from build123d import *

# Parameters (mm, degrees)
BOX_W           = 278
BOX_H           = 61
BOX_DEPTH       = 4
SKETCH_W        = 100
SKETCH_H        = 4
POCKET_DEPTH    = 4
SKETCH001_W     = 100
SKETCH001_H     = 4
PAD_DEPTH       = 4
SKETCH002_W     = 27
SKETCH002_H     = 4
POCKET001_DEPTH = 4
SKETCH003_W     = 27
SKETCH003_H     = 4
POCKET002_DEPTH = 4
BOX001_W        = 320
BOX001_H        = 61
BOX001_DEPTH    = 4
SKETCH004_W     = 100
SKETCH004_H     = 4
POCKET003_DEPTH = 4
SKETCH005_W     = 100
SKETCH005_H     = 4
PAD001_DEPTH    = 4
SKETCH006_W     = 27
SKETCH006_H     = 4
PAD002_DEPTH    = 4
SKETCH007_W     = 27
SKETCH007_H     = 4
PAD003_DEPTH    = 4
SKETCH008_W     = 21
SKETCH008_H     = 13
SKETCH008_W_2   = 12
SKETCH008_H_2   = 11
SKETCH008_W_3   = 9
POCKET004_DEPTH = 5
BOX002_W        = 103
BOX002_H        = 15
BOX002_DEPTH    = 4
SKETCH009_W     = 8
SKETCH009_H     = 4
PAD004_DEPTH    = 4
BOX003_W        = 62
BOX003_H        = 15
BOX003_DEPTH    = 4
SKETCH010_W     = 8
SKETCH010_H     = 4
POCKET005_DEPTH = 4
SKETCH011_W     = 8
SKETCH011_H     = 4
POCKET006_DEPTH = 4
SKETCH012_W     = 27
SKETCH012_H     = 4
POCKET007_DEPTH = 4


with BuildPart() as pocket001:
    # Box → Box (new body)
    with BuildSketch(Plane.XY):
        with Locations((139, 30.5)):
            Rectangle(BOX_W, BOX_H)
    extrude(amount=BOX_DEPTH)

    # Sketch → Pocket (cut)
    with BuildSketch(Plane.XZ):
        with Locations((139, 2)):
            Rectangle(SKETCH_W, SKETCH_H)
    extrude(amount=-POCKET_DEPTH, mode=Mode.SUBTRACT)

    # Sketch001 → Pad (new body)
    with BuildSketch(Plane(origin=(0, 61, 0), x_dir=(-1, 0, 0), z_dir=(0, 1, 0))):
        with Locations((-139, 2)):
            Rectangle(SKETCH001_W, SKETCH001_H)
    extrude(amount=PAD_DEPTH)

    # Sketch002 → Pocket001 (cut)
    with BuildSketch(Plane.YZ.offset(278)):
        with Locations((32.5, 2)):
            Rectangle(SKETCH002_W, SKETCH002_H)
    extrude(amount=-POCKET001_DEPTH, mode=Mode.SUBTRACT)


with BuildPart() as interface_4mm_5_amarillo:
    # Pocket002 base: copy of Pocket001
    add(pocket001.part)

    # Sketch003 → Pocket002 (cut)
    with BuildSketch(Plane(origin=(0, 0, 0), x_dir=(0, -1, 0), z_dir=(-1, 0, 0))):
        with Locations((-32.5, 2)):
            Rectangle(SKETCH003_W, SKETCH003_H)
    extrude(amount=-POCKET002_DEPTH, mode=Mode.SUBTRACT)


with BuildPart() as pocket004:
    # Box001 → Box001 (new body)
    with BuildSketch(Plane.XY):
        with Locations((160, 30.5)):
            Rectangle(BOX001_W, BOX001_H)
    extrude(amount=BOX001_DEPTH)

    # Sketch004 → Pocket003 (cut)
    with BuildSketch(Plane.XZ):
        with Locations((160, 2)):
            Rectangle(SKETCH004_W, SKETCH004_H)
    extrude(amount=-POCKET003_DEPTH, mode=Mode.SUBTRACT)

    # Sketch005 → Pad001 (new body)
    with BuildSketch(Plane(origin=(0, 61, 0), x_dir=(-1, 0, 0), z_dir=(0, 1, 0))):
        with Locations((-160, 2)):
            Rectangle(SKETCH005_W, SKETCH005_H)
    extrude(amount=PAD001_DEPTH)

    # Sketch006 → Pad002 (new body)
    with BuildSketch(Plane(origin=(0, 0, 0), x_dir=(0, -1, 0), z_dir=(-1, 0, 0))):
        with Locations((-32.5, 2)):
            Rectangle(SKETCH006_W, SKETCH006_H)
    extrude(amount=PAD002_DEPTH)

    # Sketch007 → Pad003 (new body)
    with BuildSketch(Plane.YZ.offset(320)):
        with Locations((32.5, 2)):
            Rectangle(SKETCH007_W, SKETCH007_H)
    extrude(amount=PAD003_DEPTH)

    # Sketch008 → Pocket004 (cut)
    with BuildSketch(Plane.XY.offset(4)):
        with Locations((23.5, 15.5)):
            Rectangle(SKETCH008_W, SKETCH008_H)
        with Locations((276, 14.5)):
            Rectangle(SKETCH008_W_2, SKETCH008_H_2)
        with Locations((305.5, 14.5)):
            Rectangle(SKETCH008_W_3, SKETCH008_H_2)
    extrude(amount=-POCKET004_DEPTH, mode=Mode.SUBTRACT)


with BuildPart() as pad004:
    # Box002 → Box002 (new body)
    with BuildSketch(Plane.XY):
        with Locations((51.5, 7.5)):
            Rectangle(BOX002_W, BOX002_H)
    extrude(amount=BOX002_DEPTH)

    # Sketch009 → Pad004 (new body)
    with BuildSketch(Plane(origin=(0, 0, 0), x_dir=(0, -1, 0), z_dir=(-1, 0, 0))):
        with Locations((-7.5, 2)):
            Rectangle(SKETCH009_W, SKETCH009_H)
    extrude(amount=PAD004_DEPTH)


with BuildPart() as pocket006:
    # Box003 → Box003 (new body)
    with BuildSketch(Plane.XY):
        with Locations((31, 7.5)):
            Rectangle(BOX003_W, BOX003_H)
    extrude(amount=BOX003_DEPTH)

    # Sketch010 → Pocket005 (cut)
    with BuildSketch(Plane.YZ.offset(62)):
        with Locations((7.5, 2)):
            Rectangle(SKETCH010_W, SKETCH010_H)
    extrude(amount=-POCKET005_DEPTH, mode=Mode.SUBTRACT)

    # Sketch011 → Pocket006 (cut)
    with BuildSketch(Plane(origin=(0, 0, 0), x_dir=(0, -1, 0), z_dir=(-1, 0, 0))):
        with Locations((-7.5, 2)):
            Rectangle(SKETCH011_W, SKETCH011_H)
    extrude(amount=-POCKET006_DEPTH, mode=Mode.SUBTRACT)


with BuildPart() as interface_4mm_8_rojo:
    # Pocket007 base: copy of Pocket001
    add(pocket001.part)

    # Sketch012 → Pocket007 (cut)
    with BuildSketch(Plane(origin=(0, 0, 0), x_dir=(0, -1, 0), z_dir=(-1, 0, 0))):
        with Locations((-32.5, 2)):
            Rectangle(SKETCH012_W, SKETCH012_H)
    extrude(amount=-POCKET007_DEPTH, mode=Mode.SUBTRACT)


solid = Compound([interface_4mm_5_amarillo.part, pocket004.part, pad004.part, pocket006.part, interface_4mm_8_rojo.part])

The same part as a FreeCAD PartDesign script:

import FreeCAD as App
import Part
import Sketcher

V = App.Vector


def add_polygon(sketch, points):
    """Adds a closed chain of lines whose ends are joined by coincident constraints."""
    first, n = sketch.GeometryCount, len(points)
    for a, b in zip(points, points[1:] + points[:1]):
        sketch.addGeometry(Part.LineSegment(App.Vector(*a, 0), App.Vector(*b, 0)), False)
    for i in range(n):
        sketch.addConstraint(Sketcher.Constraint("Coincident", first + i, 2, first + (i + 1) % n, 1))

doc = App.newDocument("Part")
body = doc.addObject("PartDesign::Body", "Body")

# Sketch on XY plane
sketch1 = body.newObject("Sketcher::SketchObject", "Sketch")
sketch1.AttachmentSupport = (doc.getObject("XY_Plane"), [""])
sketch1.MapMode = "FlatFace"
add_polygon(sketch1, [(0, 61), (0, 0), (278, 0), (278, 61)])  # lines 0-3
sketch1.addConstraint(Sketcher.Constraint("Vertical", 0))
sketch1.addConstraint(Sketcher.Constraint("Horizontal", 1))
sketch1.addConstraint(Sketcher.Constraint("Vertical", 2))
sketch1.addConstraint(Sketcher.Constraint("Horizontal", 3))
sketch1.addConstraint(Sketcher.Constraint("Coincident", 0, 2, -1, 1))
sketch1.addConstraint(Sketcher.Constraint("DistanceX", 1, 1, 1, 2, 278.0))
sketch1.addConstraint(Sketcher.Constraint("DistanceY", 0, 2, 0, 1, 61.0))
pad1 = body.newObject("PartDesign::Pad", "Pad")
pad1.Profile = sketch1
pad1.Length = 4

# Sketch on XZ plane
sketch2 = body.newObject("Sketcher::SketchObject", "Sketch001")
sketch2.AttachmentSupport = (doc.getObject("XZ_Plane"), [""])
sketch2.MapMode = "FlatFace"
add_polygon(sketch2, [(89, 4), (89, 0), (189, 0), (189, 4)])  # lines 0-3
sketch2.addConstraint(Sketcher.Constraint("Vertical", 0))
sketch2.addConstraint(Sketcher.Constraint("Horizontal", 1))
sketch2.addConstraint(Sketcher.Constraint("Vertical", 2))
sketch2.addConstraint(Sketcher.Constraint("Horizontal", 3))
sketch2.addConstraint(Sketcher.Constraint("PointOnObject", 0, 2, -1))
sketch2.addConstraint(Sketcher.Constraint("DistanceX", 1, 1, 1, 2, 100.0))
sketch2.addConstraint(Sketcher.Constraint("DistanceY", 0, 2, 0, 1, 4.0))
sketch2.addConstraint(Sketcher.Constraint("DistanceX", -1, 1, 0, 2, 89.0))
pocket1 = body.newObject("PartDesign::Pocket", "Pocket")
pocket1.Profile = sketch2
pocket1.Length = 4

# Sketch on XZ plane
sketch3 = body.newObject("Sketcher::SketchObject", "Sketch002")
sketch3.AttachmentSupport = (doc.getObject("XZ_Plane"), [""])
sketch3.MapMode = "FlatFace"
sketch3.AttachmentOffset = App.Placement(V(0, 0, -61), App.Rotation())
add_polygon(sketch3, [(189, 4), (189, 0), (89, 0), (89, 4)])  # lines 0-3
sketch3.addConstraint(Sketcher.Constraint("Vertical", 0))
sketch3.addConstraint(Sketcher.Constraint("Horizontal", 1))
sketch3.addConstraint(Sketcher.Constraint("Vertical", 2))
sketch3.addConstraint(Sketcher.Constraint("Horizontal", 3))
sketch3.addConstraint(Sketcher.Constraint("PointOnObject", 0, 2, -1))
sketch3.addConstraint(Sketcher.Constraint("DistanceX", 1, 2, 1, 1, 100.0))
sketch3.addConstraint(Sketcher.Constraint("DistanceY", 0, 2, 0, 1, 4.0))
sketch3.addConstraint(Sketcher.Constraint("DistanceX", -1, 1, 0, 2, 189.0))
pad2 = body.newObject("PartDesign::Pad", "Pad001")
pad2.Profile = sketch3
pad2.Length = 4
pad2.Reversed = True

# Sketch on YZ plane
sketch4 = body.newObject("Sketcher::SketchObject", "Sketch003")
sketch4.AttachmentSupport = (doc.getObject("YZ_Plane"), [""])
sketch4.MapMode = "FlatFace"
sketch4.AttachmentOffset = App.Placement(V(0, 0, 278), App.Rotation())
add_polygon(sketch4, [(19, 4), (19, 0), (46, 0), (46, 4)])  # lines 0-3
sketch4.addConstraint(Sketcher.Constraint("Vertical", 0))
sketch4.addConstraint(Sketcher.Constraint("Horizontal", 1))
sketch4.addConstraint(Sketcher.Constraint("Vertical", 2))
sketch4.addConstraint(Sketcher.Constraint("Horizontal", 3))
sketch4.addConstraint(Sketcher.Constraint("PointOnObject", 0, 2, -1))
sketch4.addConstraint(Sketcher.Constraint("DistanceX", 1, 1, 1, 2, 27.0))
sketch4.addConstraint(Sketcher.Constraint("DistanceY", 0, 2, 0, 1, 4.0))
sketch4.addConstraint(Sketcher.Constraint("DistanceX", -1, 1, 0, 2, 19.0))
pocket2 = body.newObject("PartDesign::Pocket", "Pocket001")
pocket2.Profile = sketch4
pocket2.Length = 4
body2 = doc.addObject("PartDesign::Body", "Body001")
doc.recompute()

body2.BaseFeature = body
doc.recompute()

# Sketch on YZ plane
sketch5 = body2.newObject("Sketcher::SketchObject", "Sketch004")
sketch5.AttachmentSupport = (doc.getObject("YZ_Plane001"), [""])
sketch5.MapMode = "FlatFace"
add_polygon(sketch5, [(46, 4), (46, 0), (19, 0), (19, 4)])  # lines 0-3
sketch5.addConstraint(Sketcher.Constraint("Vertical", 0))
sketch5.addConstraint(Sketcher.Constraint("Horizontal", 1))
sketch5.addConstraint(Sketcher.Constraint("Vertical", 2))
sketch5.addConstraint(Sketcher.Constraint("Horizontal", 3))
sketch5.addConstraint(Sketcher.Constraint("PointOnObject", 0, 2, -1))
sketch5.addConstraint(Sketcher.Constraint("DistanceX", 1, 2, 1, 1, 27.0))
sketch5.addConstraint(Sketcher.Constraint("DistanceY", 0, 2, 0, 1, 4.0))
sketch5.addConstraint(Sketcher.Constraint("DistanceX", -1, 1, 0, 2, 46.0))
pocket3 = body2.newObject("PartDesign::Pocket", "Pocket002")
pocket3.Profile = sketch5
pocket3.Length = 4
pocket3.Reversed = True
body3 = doc.addObject("PartDesign::Body", "Body002")

# Sketch on XY plane
sketch6 = body3.newObject("Sketcher::SketchObject", "Sketch005")
sketch6.AttachmentSupport = (doc.getObject("XY_Plane002"), [""])
sketch6.MapMode = "FlatFace"
add_polygon(sketch6, [(0, 61), (0, 0), (320, 0), (320, 61)])  # lines 0-3
sketch6.addConstraint(Sketcher.Constraint("Vertical", 0))
sketch6.addConstraint(Sketcher.Constraint("Horizontal", 1))
sketch6.addConstraint(Sketcher.Constraint("Vertical", 2))
sketch6.addConstraint(Sketcher.Constraint("Horizontal", 3))
sketch6.addConstraint(Sketcher.Constraint("Coincident", 0, 2, -1, 1))
sketch6.addConstraint(Sketcher.Constraint("DistanceX", 1, 1, 1, 2, 320.0))
sketch6.addConstraint(Sketcher.Constraint("DistanceY", 0, 2, 0, 1, 61.0))
pad3 = body3.newObject("PartDesign::Pad", "Pad002")
pad3.Profile = sketch6
pad3.Length = 4

# Sketch on XZ plane
sketch7 = body3.newObject("Sketcher::SketchObject", "Sketch006")
sketch7.AttachmentSupport = (doc.getObject("XZ_Plane002"), [""])
sketch7.MapMode = "FlatFace"
add_polygon(sketch7, [(110, 4), (110, 0), (210, 0), (210, 4)])  # lines 0-3
sketch7.addConstraint(Sketcher.Constraint("Vertical", 0))
sketch7.addConstraint(Sketcher.Constraint("Horizontal", 1))
sketch7.addConstraint(Sketcher.Constraint("Vertical", 2))
sketch7.addConstraint(Sketcher.Constraint("Horizontal", 3))
sketch7.addConstraint(Sketcher.Constraint("PointOnObject", 0, 2, -1))
sketch7.addConstraint(Sketcher.Constraint("DistanceX", 1, 1, 1, 2, 100.0))
sketch7.addConstraint(Sketcher.Constraint("DistanceY", 0, 2, 0, 1, 4.0))
sketch7.addConstraint(Sketcher.Constraint("DistanceX", -1, 1, 0, 2, 110.0))
pocket4 = body3.newObject("PartDesign::Pocket", "Pocket003")
pocket4.Profile = sketch7
pocket4.Length = 4

# Sketch on XZ plane
sketch8 = body3.newObject("Sketcher::SketchObject", "Sketch007")
sketch8.AttachmentSupport = (doc.getObject("XZ_Plane002"), [""])
sketch8.MapMode = "FlatFace"
sketch8.AttachmentOffset = App.Placement(V(0, 0, -61), App.Rotation())
add_polygon(sketch8, [(210, 4), (210, 0), (110, 0), (110, 4)])  # lines 0-3
sketch8.addConstraint(Sketcher.Constraint("Vertical", 0))
sketch8.addConstraint(Sketcher.Constraint("Horizontal", 1))
sketch8.addConstraint(Sketcher.Constraint("Vertical", 2))
sketch8.addConstraint(Sketcher.Constraint("Horizontal", 3))
sketch8.addConstraint(Sketcher.Constraint("PointOnObject", 0, 2, -1))
sketch8.addConstraint(Sketcher.Constraint("DistanceX", 1, 2, 1, 1, 100.0))
sketch8.addConstraint(Sketcher.Constraint("DistanceY", 0, 2, 0, 1, 4.0))
sketch8.addConstraint(Sketcher.Constraint("DistanceX", -1, 1, 0, 2, 210.0))
pad4 = body3.newObject("PartDesign::Pad", "Pad003")
pad4.Profile = sketch8
pad4.Length = 4
pad4.Reversed = True

# Sketch on YZ plane
sketch9 = body3.newObject("Sketcher::SketchObject", "Sketch008")
sketch9.AttachmentSupport = (doc.getObject("YZ_Plane002"), [""])
sketch9.MapMode = "FlatFace"
add_polygon(sketch9, [(46, 4), (46, 0), (19, 0), (19, 4)])  # lines 0-3
sketch9.addConstraint(Sketcher.Constraint("Vertical", 0))
sketch9.addConstraint(Sketcher.Constraint("Horizontal", 1))
sketch9.addConstraint(Sketcher.Constraint("Vertical", 2))
sketch9.addConstraint(Sketcher.Constraint("Horizontal", 3))
sketch9.addConstraint(Sketcher.Constraint("PointOnObject", 0, 2, -1))
sketch9.addConstraint(Sketcher.Constraint("DistanceX", 1, 2, 1, 1, 27.0))
sketch9.addConstraint(Sketcher.Constraint("DistanceY", 0, 2, 0, 1, 4.0))
sketch9.addConstraint(Sketcher.Constraint("DistanceX", -1, 1, 0, 2, 46.0))
pad5 = body3.newObject("PartDesign::Pad", "Pad004")
pad5.Profile = sketch9
pad5.Length = 4
pad5.Reversed = True

# Sketch on YZ plane
sketch10 = body3.newObject("Sketcher::SketchObject", "Sketch009")
sketch10.AttachmentSupport = (doc.getObject("YZ_Plane002"), [""])
sketch10.MapMode = "FlatFace"
sketch10.AttachmentOffset = App.Placement(V(0, 0, 320), App.Rotation())
add_polygon(sketch10, [(19, 4), (19, 0), (46, 0), (46, 4)])  # lines 0-3
sketch10.addConstraint(Sketcher.Constraint("Vertical", 0))
sketch10.addConstraint(Sketcher.Constraint("Horizontal", 1))
sketch10.addConstraint(Sketcher.Constraint("Vertical", 2))
sketch10.addConstraint(Sketcher.Constraint("Horizontal", 3))
sketch10.addConstraint(Sketcher.Constraint("PointOnObject", 0, 2, -1))
sketch10.addConstraint(Sketcher.Constraint("DistanceX", 1, 1, 1, 2, 27.0))
sketch10.addConstraint(Sketcher.Constraint("DistanceY", 0, 2, 0, 1, 4.0))
sketch10.addConstraint(Sketcher.Constraint("DistanceX", -1, 1, 0, 2, 19.0))
pad6 = body3.newObject("PartDesign::Pad", "Pad005")
pad6.Profile = sketch10
pad6.Length = 4

# Sketch on XY plane
sketch11 = body3.newObject("Sketcher::SketchObject", "Sketch010")
sketch11.AttachmentSupport = (doc.getObject("XY_Plane002"), [""])
sketch11.MapMode = "FlatFace"
sketch11.AttachmentOffset = App.Placement(V(0, 0, 4), App.Rotation())
add_polygon(sketch11, [(13, 22), (13, 9), (34, 9), (34, 22)])  # lines 0-3
add_polygon(sketch11, [(270, 20), (270, 9), (282, 9), (282, 20)])  # lines 4-7
add_polygon(sketch11, [(301, 20), (301, 9), (310, 9), (310, 20)])  # lines 8-11
sketch11.addConstraint(Sketcher.Constraint("Vertical", 0))
sketch11.addConstraint(Sketcher.Constraint("Horizontal", 1))
sketch11.addConstraint(Sketcher.Constraint("Vertical", 2))
sketch11.addConstraint(Sketcher.Constraint("Horizontal", 3))
sketch11.addConstraint(Sketcher.Constraint("Vertical", 4))
sketch11.addConstraint(Sketcher.Constraint("Horizontal", 5))
sketch11.addConstraint(Sketcher.Constraint("Vertical", 6))
sketch11.addConstraint(Sketcher.Constraint("Horizontal", 7))
sketch11.addConstraint(Sketcher.Constraint("Vertical", 8))
sketch11.addConstraint(Sketcher.Constraint("Horizontal", 9))
sketch11.addConstraint(Sketcher.Constraint("Vertical", 10))
sketch11.addConstraint(Sketcher.Constraint("Horizontal", 11))
sketch11.addConstraint(Sketcher.Constraint("Horizontal", 1, 2, 4, 2))
sketch11.addConstraint(Sketcher.Constraint("Horizontal", 5, 2, 8, 2))
sketch11.addConstraint(Sketcher.Constraint("Horizontal", 7, 2, 10, 2))
sketch11.addConstraint(Sketcher.Constraint("DistanceX", 1, 1, 1, 2, 21.0))
sketch11.addConstraint(Sketcher.Constraint("DistanceX", 5, 1, 5, 2, 12.0))
sketch11.addConstraint(Sketcher.Constraint("DistanceX", 9, 1, 9, 2, 9.0))
sketch11.addConstraint(Sketcher.Constraint("DistanceY", 0, 2, 0, 1, 13.0))
sketch11.addConstraint(Sketcher.Constraint("DistanceY", 4, 2, 4, 1, 11.0))
sketch11.addConstraint(Sketcher.Constraint("DistanceX", -1, 1, 0, 2, 13.0))
sketch11.addConstraint(Sketcher.Constraint("DistanceY", -1, 1, 0, 2, 9.0))
sketch11.addConstraint(Sketcher.Constraint("DistanceX", -1, 1, 4, 2, 270.0))
sketch11.addConstraint(Sketcher.Constraint("DistanceX", -1, 1, 8, 2, 301.0))
pocket5 = body3.newObject("PartDesign::Pocket", "Pocket004")
pocket5.Profile = sketch11
pocket5.Length = 5
body4 = doc.addObject("PartDesign::Body", "Body003")

# Sketch on XY plane
sketch12 = body4.newObject("Sketcher::SketchObject", "Sketch011")
sketch12.AttachmentSupport = (doc.getObject("XY_Plane003"), [""])
sketch12.MapMode = "FlatFace"
add_polygon(sketch12, [(0, 15), (0, 0), (103, 0), (103, 15)])  # lines 0-3
sketch12.addConstraint(Sketcher.Constraint("Vertical", 0))
sketch12.addConstraint(Sketcher.Constraint("Horizontal", 1))
sketch12.addConstraint(Sketcher.Constraint("Vertical", 2))
sketch12.addConstraint(Sketcher.Constraint("Horizontal", 3))
sketch12.addConstraint(Sketcher.Constraint("Coincident", 0, 2, -1, 1))
sketch12.addConstraint(Sketcher.Constraint("DistanceX", 1, 1, 1, 2, 103.0))
sketch12.addConstraint(Sketcher.Constraint("DistanceY", 0, 2, 0, 1, 15.0))
pad7 = body4.newObject("PartDesign::Pad", "Pad006")
pad7.Profile = sketch12
pad7.Length = 4

# Sketch on YZ plane
sketch13 = body4.newObject("Sketcher::SketchObject", "Sketch012")
sketch13.AttachmentSupport = (doc.getObject("YZ_Plane003"), [""])
sketch13.MapMode = "FlatFace"
add_polygon(sketch13, [(11.5, 4), (11.5, 0), (3.5, 0), (3.5, 4)])  # lines 0-3
sketch13.addConstraint(Sketcher.Constraint("Vertical", 0))
sketch13.addConstraint(Sketcher.Constraint("Horizontal", 1))
sketch13.addConstraint(Sketcher.Constraint("Vertical", 2))
sketch13.addConstraint(Sketcher.Constraint("Horizontal", 3))
sketch13.addConstraint(Sketcher.Constraint("PointOnObject", 0, 2, -1))
sketch13.addConstraint(Sketcher.Constraint("DistanceX", 1, 2, 1, 1, 8.0))
sketch13.addConstraint(Sketcher.Constraint("DistanceY", 0, 2, 0, 1, 4.0))
sketch13.addConstraint(Sketcher.Constraint("DistanceX", -1, 1, 0, 2, 11.5))
pad8 = body4.newObject("PartDesign::Pad", "Pad007")
pad8.Profile = sketch13
pad8.Length = 4
pad8.Reversed = True
body5 = doc.addObject("PartDesign::Body", "Body004")

# Sketch on XY plane
sketch14 = body5.newObject("Sketcher::SketchObject", "Sketch013")
sketch14.AttachmentSupport = (doc.getObject("XY_Plane004"), [""])
sketch14.MapMode = "FlatFace"
add_polygon(sketch14, [(0, 15), (0, 0), (62, 0), (62, 15)])  # lines 0-3
sketch14.addConstraint(Sketcher.Constraint("Vertical", 0))
sketch14.addConstraint(Sketcher.Constraint("Horizontal", 1))
sketch14.addConstraint(Sketcher.Constraint("Vertical", 2))
sketch14.addConstraint(Sketcher.Constraint("Horizontal", 3))
sketch14.addConstraint(Sketcher.Constraint("Coincident", 0, 2, -1, 1))
sketch14.addConstraint(Sketcher.Constraint("DistanceX", 1, 1, 1, 2, 62.0))
sketch14.addConstraint(Sketcher.Constraint("DistanceY", 0, 2, 0, 1, 15.0))
pad9 = body5.newObject("PartDesign::Pad", "Pad008")
pad9.Profile = sketch14
pad9.Length = 4

# Sketch on YZ plane
sketch15 = body5.newObject("Sketcher::SketchObject", "Sketch014")
sketch15.AttachmentSupport = (doc.getObject("YZ_Plane004"), [""])
sketch15.MapMode = "FlatFace"
sketch15.AttachmentOffset = App.Placement(V(0, 0, 62), App.Rotation())
add_polygon(sketch15, [(3.5, 4), (3.5, 0), (11.5, 0), (11.5, 4)])  # lines 0-3
sketch15.addConstraint(Sketcher.Constraint("Vertical", 0))
sketch15.addConstraint(Sketcher.Constraint("Horizontal", 1))
sketch15.addConstraint(Sketcher.Constraint("Vertical", 2))
sketch15.addConstraint(Sketcher.Constraint("Horizontal", 3))
sketch15.addConstraint(Sketcher.Constraint("PointOnObject", 0, 2, -1))
sketch15.addConstraint(Sketcher.Constraint("DistanceX", 1, 1, 1, 2, 8.0))
sketch15.addConstraint(Sketcher.Constraint("DistanceY", 0, 2, 0, 1, 4.0))
sketch15.addConstraint(Sketcher.Constraint("DistanceX", -1, 1, 0, 2, 3.5))
pocket6 = body5.newObject("PartDesign::Pocket", "Pocket005")
pocket6.Profile = sketch15
pocket6.Length = 4

# Sketch on YZ plane
sketch16 = body5.newObject("Sketcher::SketchObject", "Sketch015")
sketch16.AttachmentSupport = (doc.getObject("YZ_Plane004"), [""])
sketch16.MapMode = "FlatFace"
add_polygon(sketch16, [(11.5, 4), (11.5, 0), (3.5, 0), (3.5, 4)])  # lines 0-3
sketch16.addConstraint(Sketcher.Constraint("Vertical", 0))
sketch16.addConstraint(Sketcher.Constraint("Horizontal", 1))
sketch16.addConstraint(Sketcher.Constraint("Vertical", 2))
sketch16.addConstraint(Sketcher.Constraint("Horizontal", 3))
sketch16.addConstraint(Sketcher.Constraint("PointOnObject", 0, 2, -1))
sketch16.addConstraint(Sketcher.Constraint("DistanceX", 1, 2, 1, 1, 8.0))
sketch16.addConstraint(Sketcher.Constraint("DistanceY", 0, 2, 0, 1, 4.0))
sketch16.addConstraint(Sketcher.Constraint("DistanceX", -1, 1, 0, 2, 11.5))
pocket7 = body5.newObject("PartDesign::Pocket", "Pocket006")
pocket7.Profile = sketch16
pocket7.Length = 4
pocket7.Reversed = True

# Sketch on YZ plane
sketch17 = body.newObject("Sketcher::SketchObject", "Sketch016")
sketch17.AttachmentSupport = (doc.getObject("YZ_Plane"), [""])
sketch17.MapMode = "FlatFace"
add_polygon(sketch17, [(46, 4), (46, 0), (19, 0), (19, 4)])  # lines 0-3
sketch17.addConstraint(Sketcher.Constraint("Vertical", 0))
sketch17.addConstraint(Sketcher.Constraint("Horizontal", 1))
sketch17.addConstraint(Sketcher.Constraint("Vertical", 2))
sketch17.addConstraint(Sketcher.Constraint("Horizontal", 3))
sketch17.addConstraint(Sketcher.Constraint("PointOnObject", 0, 2, -1))
sketch17.addConstraint(Sketcher.Constraint("DistanceX", 1, 2, 1, 1, 27.0))
sketch17.addConstraint(Sketcher.Constraint("DistanceY", 0, 2, 0, 1, 4.0))
sketch17.addConstraint(Sketcher.Constraint("DistanceX", -1, 1, 0, 2, 46.0))
pocket8 = body.newObject("PartDesign::Pocket", "Pocket007")
pocket8.Profile = sketch17
pocket8.Length = 4
pocket8.Reversed = True

doc.recompute()
